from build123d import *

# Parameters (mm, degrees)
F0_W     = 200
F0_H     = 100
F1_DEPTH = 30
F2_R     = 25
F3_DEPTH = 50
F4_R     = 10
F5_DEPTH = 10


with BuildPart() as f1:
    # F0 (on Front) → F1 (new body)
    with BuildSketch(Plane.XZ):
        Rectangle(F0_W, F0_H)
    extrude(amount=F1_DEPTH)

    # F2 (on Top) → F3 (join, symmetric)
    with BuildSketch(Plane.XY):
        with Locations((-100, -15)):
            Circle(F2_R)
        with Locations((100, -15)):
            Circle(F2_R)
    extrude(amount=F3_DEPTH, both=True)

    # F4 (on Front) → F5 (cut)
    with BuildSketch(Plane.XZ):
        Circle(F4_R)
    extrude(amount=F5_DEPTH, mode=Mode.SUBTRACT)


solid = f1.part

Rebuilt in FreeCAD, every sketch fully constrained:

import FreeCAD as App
import Part
import Sketcher

V = App.Vector
Q = App.Units.Quantity


def add_polygon(sketch, points):
    """Adds a closed chain of lines whose ends are joined by coincident constraints."""
    first, n = sketch.GeometryCount, len(points)
    for a, b in zip(points, points[1:] + points[:1]):
        sketch.addGeometry(Part.LineSegment(App.Vector(*a, 0), App.Vector(*b, 0)), False)
    for i in range(n):
        sketch.addConstraint(Sketcher.Constraint("Coincident", first + i, 2, first + (i + 1) % n, 1))

doc = App.newDocument("Part")
body = doc.addObject("PartDesign::Body", "Body")

sketch1 = doc.addObject("Sketcher::SketchObject", "Sketch")
body.addObject(sketch1)
sketch1.AttachmentSupport = (doc.XZ_Plane, [""])
sketch1.MapMode = "FlatFace"
add_polygon(sketch1, [(-100, 50), (-100, -50), (100, -50), (100, 50)])
sketch1.addConstraint([
    Sketcher.Constraint("Vertical", 0),
    Sketcher.Constraint("Horizontal", 1),
    Sketcher.Constraint("Vertical", 2),
    Sketcher.Constraint("Horizontal", 3),
    Sketcher.Constraint("Symmetric", 0, 2, 2, 2, -1, 1),
    Sketcher.Constraint("DistanceX", 1, 1, 1, 2, Q("200 mm")),
    Sketcher.Constraint("DistanceY", 0, 2, 0, 1, Q("100 mm")),
])
pad1 = doc.addObject("PartDesign::Pad", "Pad")
body.addObject(pad1)
pad1.Profile = sketch1
pad1.Length = 30

sketch2 = doc.addObject("Sketcher::SketchObject", "Sketch001")
body.addObject(sketch2)
sketch2.AttachmentSupport = (doc.XY_Plane, [""])
sketch2.MapMode = "FlatFace"
sketch2.addGeometry([
    Part.Circle(V(-100, -15, 0), V(0, 0, 1), 25),
    Part.Circle(V(100, -15, 0), V(0, 0, 1), 25),
], False)
sketch2.addConstraint([
    Sketcher.Constraint("Equal", 0, 1),
    Sketcher.Constraint("Symmetric", 0, 3, 1, 3, -2),
    Sketcher.Constraint("Diameter", 0, Q("50 mm")),
    Sketcher.Constraint("DistanceX", 0, 3, -1, 1, Q("100 mm")),
    Sketcher.Constraint("DistanceY", 0, 3, -1, 1, Q("15 mm")),
])
pad2 = doc.addObject("PartDesign::Pad", "Pad001")
body.addObject(pad2)
pad2.Profile = sketch2
pad2.Length = 100
pad2.Midplane = True

sketch3 = doc.addObject("Sketcher::SketchObject", "Sketch002")
body.addObject(sketch3)
sketch3.AttachmentSupport = (doc.XZ_Plane, [""])
sketch3.MapMode = "FlatFace"
sketch3.addGeometry(Part.Circle(V(0, 0, 0), V(0, 0, 1), 10), False)
sketch3.addConstraint([
    Sketcher.Constraint("Coincident", 0, 3, -1, 1),
    Sketcher.Constraint("Diameter", 0, Q("20 mm")),
])
pocket1 = doc.addObject("PartDesign::Pocket", "Pocket")
body.addObject(pocket1)
pocket1.Profile = sketch3
pocket1.Length = 10
pocket1.Reversed = True

doc.recompute()
